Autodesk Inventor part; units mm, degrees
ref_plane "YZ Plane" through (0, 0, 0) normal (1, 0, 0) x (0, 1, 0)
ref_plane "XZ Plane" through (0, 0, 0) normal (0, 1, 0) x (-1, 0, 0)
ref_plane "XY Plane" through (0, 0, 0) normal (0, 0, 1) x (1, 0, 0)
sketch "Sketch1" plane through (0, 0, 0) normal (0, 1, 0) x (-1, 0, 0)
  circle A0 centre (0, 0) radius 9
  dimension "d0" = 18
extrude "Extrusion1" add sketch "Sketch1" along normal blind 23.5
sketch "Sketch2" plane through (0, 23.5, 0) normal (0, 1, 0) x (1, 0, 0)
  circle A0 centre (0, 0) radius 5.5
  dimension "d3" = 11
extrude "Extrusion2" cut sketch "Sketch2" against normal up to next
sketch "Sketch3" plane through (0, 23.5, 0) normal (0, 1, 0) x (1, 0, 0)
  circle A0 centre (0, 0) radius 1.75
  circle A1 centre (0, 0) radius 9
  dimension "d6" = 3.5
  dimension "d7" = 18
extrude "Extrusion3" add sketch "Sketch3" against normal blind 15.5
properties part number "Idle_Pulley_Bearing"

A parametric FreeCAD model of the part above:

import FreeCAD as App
import Part
import Sketcher

V = App.Vector
Q = App.Units.Quantity

doc = App.newDocument("Part")
body = doc.addObject("PartDesign::Body", "Body")

# Sketch on XZ plane
sketch1 = doc.addObject("Sketcher::SketchObject", "Sketch")
body.addObject(sketch1)
sketch1.AttachmentSupport = (doc.XZ_Plane, [""])
sketch1.MapMode = "FlatFace"
sketch1.addGeometry(Part.Circle(V(0, 0, 0), V(0, 0, 1), 9), False)
sketch1.addConstraint([
    Sketcher.Constraint("Coincident", 0, 3, -1, 1),
    Sketcher.Constraint("Diameter", 0, Q("18 mm")),
])
pad1 = doc.addObject("PartDesign::Pad", "Pad")
body.addObject(pad1)
pad1.Profile = sketch1
pad1.Length = 23.5
pad1.Reversed = True

# Sketch on XZ plane
sketch2 = doc.addObject("Sketcher::SketchObject", "Sketch001")
body.addObject(sketch2)
sketch2.AttachmentSupport = (doc.XZ_Plane, [""])
sketch2.MapMode = "FlatFace"
sketch2.AttachmentOffset = App.Placement(V(0, 0, -23.5), App.Rotation())
sketch2.addGeometry(Part.Circle(V(0, 0, 0), V(0, 0, 1), 6), False)
sketch2.addConstraint([
    Sketcher.Constraint("Coincident", 0, 3, -1, 1),
    Sketcher.Constraint("Diameter", 0, Q("11 mm")),
])
pocket1 = doc.addObject("PartDesign::Pocket", "Pocket")
body.addObject(pocket1)
pocket1.Profile = sketch2
pocket1.Type = "UpToFirst"
pocket1.Reversed = True

# Sketch on XZ plane
sketch3 = doc.addObject("Sketcher::SketchObject", "Sketch002")
body.addObject(sketch3)
sketch3.AttachmentSupport = (doc.XZ_Plane, [""])
sketch3.MapMode = "FlatFace"
sketch3.AttachmentOffset = App.Placement(V(0, 0, -23.5), App.Rotation())
sketch3.addGeometry([
    Part.Circle(V(0, 0, 0), V(0, 0, 1), 9),
    Part.Circle(V(0, 0, 0), V(0, 0, 1), 1.8),
], False)
sketch3.addConstraint([
    Sketcher.Constraint("Coincident", 0, 3, -1, 1),
    Sketcher.Constraint("Coincident", 1, 3, -1, 1),
    Sketcher.Constraint("Diameter", 0, Q("18 mm")),
    Sketcher.Constraint("Diameter", 1, Q("3.5 mm")),
])
pad2 = doc.addObject("PartDesign::Pad", "Pad001")
body.addObject(pad2)
pad2.Profile = sketch3
pad2.Length = 15.5

doc.recompute()
